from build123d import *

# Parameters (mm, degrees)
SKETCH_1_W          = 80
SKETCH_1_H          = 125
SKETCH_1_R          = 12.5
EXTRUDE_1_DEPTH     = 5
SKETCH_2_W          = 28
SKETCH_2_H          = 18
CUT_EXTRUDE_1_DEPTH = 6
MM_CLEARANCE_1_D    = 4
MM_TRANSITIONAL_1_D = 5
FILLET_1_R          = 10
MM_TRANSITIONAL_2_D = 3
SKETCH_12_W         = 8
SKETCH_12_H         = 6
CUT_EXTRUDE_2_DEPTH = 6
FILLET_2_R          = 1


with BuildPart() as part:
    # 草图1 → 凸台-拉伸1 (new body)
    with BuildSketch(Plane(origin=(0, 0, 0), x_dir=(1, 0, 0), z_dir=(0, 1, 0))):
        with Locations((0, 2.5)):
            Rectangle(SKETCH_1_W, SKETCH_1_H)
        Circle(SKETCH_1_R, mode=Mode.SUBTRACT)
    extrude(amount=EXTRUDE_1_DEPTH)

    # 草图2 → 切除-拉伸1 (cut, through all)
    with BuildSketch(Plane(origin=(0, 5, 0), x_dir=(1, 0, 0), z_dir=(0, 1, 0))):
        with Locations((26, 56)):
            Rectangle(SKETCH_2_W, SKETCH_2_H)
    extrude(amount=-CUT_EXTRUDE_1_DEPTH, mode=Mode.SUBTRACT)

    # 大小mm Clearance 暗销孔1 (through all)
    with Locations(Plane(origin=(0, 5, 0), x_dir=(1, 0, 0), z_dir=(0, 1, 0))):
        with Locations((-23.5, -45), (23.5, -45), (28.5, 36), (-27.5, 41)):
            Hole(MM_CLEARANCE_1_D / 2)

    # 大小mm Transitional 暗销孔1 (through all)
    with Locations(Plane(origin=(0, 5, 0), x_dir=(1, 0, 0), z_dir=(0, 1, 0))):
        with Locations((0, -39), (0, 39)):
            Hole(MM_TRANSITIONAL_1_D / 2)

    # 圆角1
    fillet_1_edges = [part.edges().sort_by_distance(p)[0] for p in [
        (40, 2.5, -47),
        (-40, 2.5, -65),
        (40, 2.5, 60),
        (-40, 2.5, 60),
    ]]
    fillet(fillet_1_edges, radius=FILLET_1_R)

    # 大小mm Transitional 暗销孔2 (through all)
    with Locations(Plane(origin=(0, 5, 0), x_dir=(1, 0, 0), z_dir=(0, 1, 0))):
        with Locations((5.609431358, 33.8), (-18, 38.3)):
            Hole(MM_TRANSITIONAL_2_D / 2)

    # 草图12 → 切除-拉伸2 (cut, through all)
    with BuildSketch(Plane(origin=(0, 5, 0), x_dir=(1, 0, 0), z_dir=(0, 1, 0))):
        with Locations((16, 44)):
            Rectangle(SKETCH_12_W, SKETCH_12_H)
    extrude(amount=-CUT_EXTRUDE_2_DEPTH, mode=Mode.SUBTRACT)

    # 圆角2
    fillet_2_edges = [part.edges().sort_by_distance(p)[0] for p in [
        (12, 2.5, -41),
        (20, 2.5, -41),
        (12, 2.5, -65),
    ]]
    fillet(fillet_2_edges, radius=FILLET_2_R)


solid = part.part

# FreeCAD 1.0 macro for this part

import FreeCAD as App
import Part
import Sketcher

V = App.Vector


def edges_at(feature, points):
    """Names of the edges that pass closest to the given points."""
    edges = feature.Shape.Edges
    near = lambda p: min(range(len(edges)), key=lambda i: edges[i].distToShape(Part.Vertex(*p))[0])
    return sorted({f"Edge{near(p) + 1}" for p in points})

doc = App.newDocument("Part")
body = doc.addObject("PartDesign::Body", "Body")

# Sketch on XZ plane
sketch1 = body.newObject("Sketcher::SketchObject", "Sketch")
sketch1.AttachmentSupport = (doc.getObject("XZ_Plane"), [""])
sketch1.MapMode = "FlatFace"
sketch1.addGeometry([
    Part.LineSegment(V(-40, -65, 0), V(-40, 60, 0)),  # 0
    Part.LineSegment(V(-40, 60, 0), V(40, 60, 0)),  # 1
    Part.LineSegment(V(40, 60, 0), V(40, -65, 0)),  # 2
    Part.LineSegment(V(40, -65, 0), V(-40, -65, 0)),  # 3
    Part.Circle(V(0, 0, 0), V(0, 0, 1), 12),  # 4
], False)
sketch1.addConstraint([
    Sketcher.Constraint("Coincident", 0, 2, 1, 1),
    Sketcher.Constraint("Coincident", 1, 2, 2, 1),
    Sketcher.Constraint("Coincident", 2, 2, 3, 1),
    Sketcher.Constraint("Coincident", 3, 2, 0, 1),
    Sketcher.Constraint("Vertical", 0),
    Sketcher.Constraint("Horizontal", 1),
    Sketcher.Constraint("Vertical", 2),
    Sketcher.Constraint("Horizontal", 3),
    Sketcher.Constraint("Coincident", 4, 3, -1, 1),
    Sketcher.Constraint("Diameter", 4, 25.0),
    Sketcher.Constraint("DistanceX", 1, 1, 1, 2, 80.0),
    Sketcher.Constraint("DistanceY", 0, 1, 0, 2, 125.0),
    Sketcher.Constraint("DistanceX", 0, 2, -1, 1, 40.0),
    Sketcher.Constraint("DistanceY", -1, 1, 0, 2, 60.0),
])
pad1 = body.newObject("PartDesign::Pad", "Pad")
pad1.Profile = sketch1
pad1.Length = 5
pad1.Reversed = True

# Sketch on XZ plane
sketch2 = body.newObject("Sketcher::SketchObject", "Sketch001")
sketch2.AttachmentSupport = (doc.getObject("XZ_Plane"), [""])
sketch2.MapMode = "FlatFace"
sketch2.AttachmentOffset = App.Placement(V(0, 0, -5), App.Rotation())
sketch2.addGeometry([
    Part.LineSegment(V(12, -65, 0), V(12, -47, 0)),
    Part.LineSegment(V(12, -47, 0), V(40, -47, 0)),
    Part.LineSegment(V(40, -47, 0), V(40, -65, 0)),
    Part.LineSegment(V(40, -65, 0), V(12, -65, 0)),
], False)
sketch2.addConstraint([
    Sketcher.Constraint("Coincident", 0, 2, 1, 1),
    Sketcher.Constraint("Coincident", 1, 2, 2, 1),
    Sketcher.Constraint("Coincident", 2, 2, 3, 1),
    Sketcher.Constraint("Coincident", 3, 2, 0, 1),
    Sketcher.Constraint("Vertical", 0),
    Sketcher.Constraint("Horizontal", 1),
    Sketcher.Constraint("Vertical", 2),
    Sketcher.Constraint("Horizontal", 3),
    Sketcher.Constraint("DistanceX", 1, 1, 1, 2, 28.0),
    Sketcher.Constraint("DistanceY", 0, 1, 0, 2, 18.0),
    Sketcher.Constraint("DistanceX", -1, 1, 0, 2, 12.0),
    Sketcher.Constraint("DistanceY", 0, 2, -1, 1, 47.0),
])
pocket1 = body.newObject("PartDesign::Pocket", "Pocket")
pocket1.Profile = sketch2
pocket1.Type = "ThroughAll"
pocket1.Reversed = True

# Sketch on XZ plane
sketch3 = body.newObject("Sketcher::SketchObject", "Sketch002")
sketch3.AttachmentSupport = (doc.getObject("XZ_Plane"), [""])
sketch3.MapMode = "FlatFace"
sketch3.AttachmentOffset = App.Placement(V(0, 0, -5), App.Rotation())
sketch3.addGeometry([
    Part.Circle(V(-23.5, 45, 0), V(0, 0, 1), 2),
    Part.Circle(V(23.5, 45, 0), V(0, 0, 1), 2),
    Part.Circle(V(28.5, -36, 0), V(0, 0, 1), 2),
    Part.Circle(V(-27.5, -41, 0), V(0, 0, 1), 2),
], False)
sketch3.addConstraint([
    Sketcher.Constraint("Equal", 0, 1),
    Sketcher.Constraint("Equal", 1, 2),
    Sketcher.Constraint("Equal", 2, 3),
    Sketcher.Constraint("Symmetric", 0, 3, 1, 3, -2),
    Sketcher.Constraint("Diameter", 0, 4.0),
    Sketcher.Constraint("DistanceY", -1, 1, 0, 3, 45.0),
    Sketcher.Constraint("DistanceY", 2, 3, -1, 1, 36.0),
    Sketcher.Constraint("DistanceY", 3, 3, -1, 1, 41.0),
    Sketcher.Constraint("DistanceX", 0, 3, 1, 3, 47.0),
    Sketcher.Constraint("DistanceX", 1, 3, 2, 3, 5.0),
    Sketcher.Constraint("DistanceX", 3, 3, 2, 3, 56.0),
])
doc.recompute()
hole = body.newObject("PartDesign::Hole", "Hole")
hole.Profile = sketch3
hole.ThreadType = "None"
hole.Diameter = 4
hole.DepthType = "ThroughAll"
hole.Reversed = True

# Sketch on XZ plane
sketch4 = body.newObject("Sketcher::SketchObject", "Sketch003")
sketch4.AttachmentSupport = (doc.getObject("XZ_Plane"), [""])
sketch4.MapMode = "FlatFace"
sketch4.AttachmentOffset = App.Placement(V(0, 0, -5), App.Rotation())
sketch4.addGeometry([
    Part.Circle(V(0, 39, 0), V(0, 0, 1), 2.5),
    Part.Circle(V(0, -39, 0), V(0, 0, 1), 2.5),
], False)
sketch4.addConstraint([
    Sketcher.Constraint("Equal", 0, 1),
    Sketcher.Constraint("Symmetric", 0, 3, 1, 3, -1, 1),
    Sketcher.Constraint("PointOnObject", 0, 3, -2),
    Sketcher.Constraint("Diameter", 0, 5.0),
    Sketcher.Constraint("DistanceY", -1, 1, 0, 3, 39.0),
])
doc.recompute()
hole2 = body.newObject("PartDesign::Hole", "Hole001")
hole2.Profile = sketch4
hole2.ThreadType = "None"
hole2.Diameter = 5
hole2.DepthType = "ThroughAll"
hole2.Reversed = True
doc.recompute()

fillet = body.newObject("PartDesign::Fillet", "Fillet")
fillet.Base = (hole2, edges_at(hole2, [
    (40, 2.5, -47),
    (-40, 2.5, -65),
    (40, 2.5, 60),
    (-40, 2.5, 60),
]))
fillet.Radius = 10

# Sketch on XZ plane
sketch5 = body.newObject("Sketcher::SketchObject", "Sketch004")
sketch5.AttachmentSupport = (doc.getObject("XZ_Plane"), [""])
sketch5.MapMode = "FlatFace"
sketch5.AttachmentOffset = App.Placement(V(0, 0, -5), App.Rotation())
sketch5.addGeometry([
    Part.Circle(V(5.6, -33.8, 0), V(0, 0, 1), 1.5),
    Part.Circle(V(-18, -38.3, 0), V(0, 0, 1), 1.5),
], False)
sketch5.addConstraint([
    Sketcher.Constraint("Equal", 0, 1),
    Sketcher.Constraint("Diameter", 0, 3.0),
    Sketcher.Constraint("DistanceX", 1, 3, -1, 1, 18.0),
    Sketcher.Constraint("DistanceY", 0, 3, -1, 1, 33.8),
    Sketcher.Constraint("DistanceY", 1, 3, -1, 1, 38.3),
    Sketcher.Constraint("DistanceX", -1, 1, 0, 3, 5.609431),
])
doc.recompute()
hole3 = body.newObject("PartDesign::Hole", "Hole002")
hole3.Profile = sketch5
hole3.ThreadType = "None"
hole3.Diameter = 3
hole3.DepthType = "ThroughAll"
hole3.Reversed = True

# Sketch on XZ plane
sketch6 = body.newObject("Sketcher::SketchObject", "Sketch005")
sketch6.AttachmentSupport = (doc.getObject("XZ_Plane"), [""])
sketch6.MapMode = "FlatFace"
sketch6.AttachmentOffset = App.Placement(V(0, 0, -5), App.Rotation())
sketch6.addGeometry([
    Part.LineSegment(V(12, -47, 0), V(12, -41, 0)),
    Part.LineSegment(V(12, -41, 0), V(20, -41, 0)),
    Part.LineSegment(V(20, -41, 0), V(20, -47, 0)),
    Part.LineSegment(V(20, -47, 0), V(12, -47, 0)),
], False)
sketch6.addConstraint([
    Sketcher.Constraint("Coincident", 0, 2, 1, 1),
    Sketcher.Constraint("Coincident", 1, 2, 2, 1),
    Sketcher.Constraint("Coincident", 2, 2, 3, 1),
    Sketcher.Constraint("Coincident", 3, 2, 0, 1),
    Sketcher.Constraint("Vertical", 0),
    Sketcher.Constraint("Horizontal", 1),
    Sketcher.Constraint("Vertical", 2),
    Sketcher.Constraint("Horizontal", 3),
    Sketcher.Constraint("DistanceX", 1, 1, 1, 2, 8.0),
    Sketcher.Constraint("DistanceY", 0, 1, 0, 2, 6.0),
    Sketcher.Constraint("DistanceX", -1, 1, 0, 2, 12.0),
    Sketcher.Constraint("DistanceY", 0, 2, -1, 1, 41.0),
])
pocket2 = body.newObject("PartDesign::Pocket", "Pocket001")
pocket2.Profile = sketch6
pocket2.Type = "ThroughAll"
pocket2.Reversed = True
doc.recompute()

fillet2 = body.newObject("PartDesign::Fillet", "Fillet001")
fillet2.Base = (pocket2, edges_at(pocket2, [(12, 2.5, -41), (20, 2.5, -41), (12, 2.5, -65)]))
fillet2.Radius = 1

doc.recompute()
